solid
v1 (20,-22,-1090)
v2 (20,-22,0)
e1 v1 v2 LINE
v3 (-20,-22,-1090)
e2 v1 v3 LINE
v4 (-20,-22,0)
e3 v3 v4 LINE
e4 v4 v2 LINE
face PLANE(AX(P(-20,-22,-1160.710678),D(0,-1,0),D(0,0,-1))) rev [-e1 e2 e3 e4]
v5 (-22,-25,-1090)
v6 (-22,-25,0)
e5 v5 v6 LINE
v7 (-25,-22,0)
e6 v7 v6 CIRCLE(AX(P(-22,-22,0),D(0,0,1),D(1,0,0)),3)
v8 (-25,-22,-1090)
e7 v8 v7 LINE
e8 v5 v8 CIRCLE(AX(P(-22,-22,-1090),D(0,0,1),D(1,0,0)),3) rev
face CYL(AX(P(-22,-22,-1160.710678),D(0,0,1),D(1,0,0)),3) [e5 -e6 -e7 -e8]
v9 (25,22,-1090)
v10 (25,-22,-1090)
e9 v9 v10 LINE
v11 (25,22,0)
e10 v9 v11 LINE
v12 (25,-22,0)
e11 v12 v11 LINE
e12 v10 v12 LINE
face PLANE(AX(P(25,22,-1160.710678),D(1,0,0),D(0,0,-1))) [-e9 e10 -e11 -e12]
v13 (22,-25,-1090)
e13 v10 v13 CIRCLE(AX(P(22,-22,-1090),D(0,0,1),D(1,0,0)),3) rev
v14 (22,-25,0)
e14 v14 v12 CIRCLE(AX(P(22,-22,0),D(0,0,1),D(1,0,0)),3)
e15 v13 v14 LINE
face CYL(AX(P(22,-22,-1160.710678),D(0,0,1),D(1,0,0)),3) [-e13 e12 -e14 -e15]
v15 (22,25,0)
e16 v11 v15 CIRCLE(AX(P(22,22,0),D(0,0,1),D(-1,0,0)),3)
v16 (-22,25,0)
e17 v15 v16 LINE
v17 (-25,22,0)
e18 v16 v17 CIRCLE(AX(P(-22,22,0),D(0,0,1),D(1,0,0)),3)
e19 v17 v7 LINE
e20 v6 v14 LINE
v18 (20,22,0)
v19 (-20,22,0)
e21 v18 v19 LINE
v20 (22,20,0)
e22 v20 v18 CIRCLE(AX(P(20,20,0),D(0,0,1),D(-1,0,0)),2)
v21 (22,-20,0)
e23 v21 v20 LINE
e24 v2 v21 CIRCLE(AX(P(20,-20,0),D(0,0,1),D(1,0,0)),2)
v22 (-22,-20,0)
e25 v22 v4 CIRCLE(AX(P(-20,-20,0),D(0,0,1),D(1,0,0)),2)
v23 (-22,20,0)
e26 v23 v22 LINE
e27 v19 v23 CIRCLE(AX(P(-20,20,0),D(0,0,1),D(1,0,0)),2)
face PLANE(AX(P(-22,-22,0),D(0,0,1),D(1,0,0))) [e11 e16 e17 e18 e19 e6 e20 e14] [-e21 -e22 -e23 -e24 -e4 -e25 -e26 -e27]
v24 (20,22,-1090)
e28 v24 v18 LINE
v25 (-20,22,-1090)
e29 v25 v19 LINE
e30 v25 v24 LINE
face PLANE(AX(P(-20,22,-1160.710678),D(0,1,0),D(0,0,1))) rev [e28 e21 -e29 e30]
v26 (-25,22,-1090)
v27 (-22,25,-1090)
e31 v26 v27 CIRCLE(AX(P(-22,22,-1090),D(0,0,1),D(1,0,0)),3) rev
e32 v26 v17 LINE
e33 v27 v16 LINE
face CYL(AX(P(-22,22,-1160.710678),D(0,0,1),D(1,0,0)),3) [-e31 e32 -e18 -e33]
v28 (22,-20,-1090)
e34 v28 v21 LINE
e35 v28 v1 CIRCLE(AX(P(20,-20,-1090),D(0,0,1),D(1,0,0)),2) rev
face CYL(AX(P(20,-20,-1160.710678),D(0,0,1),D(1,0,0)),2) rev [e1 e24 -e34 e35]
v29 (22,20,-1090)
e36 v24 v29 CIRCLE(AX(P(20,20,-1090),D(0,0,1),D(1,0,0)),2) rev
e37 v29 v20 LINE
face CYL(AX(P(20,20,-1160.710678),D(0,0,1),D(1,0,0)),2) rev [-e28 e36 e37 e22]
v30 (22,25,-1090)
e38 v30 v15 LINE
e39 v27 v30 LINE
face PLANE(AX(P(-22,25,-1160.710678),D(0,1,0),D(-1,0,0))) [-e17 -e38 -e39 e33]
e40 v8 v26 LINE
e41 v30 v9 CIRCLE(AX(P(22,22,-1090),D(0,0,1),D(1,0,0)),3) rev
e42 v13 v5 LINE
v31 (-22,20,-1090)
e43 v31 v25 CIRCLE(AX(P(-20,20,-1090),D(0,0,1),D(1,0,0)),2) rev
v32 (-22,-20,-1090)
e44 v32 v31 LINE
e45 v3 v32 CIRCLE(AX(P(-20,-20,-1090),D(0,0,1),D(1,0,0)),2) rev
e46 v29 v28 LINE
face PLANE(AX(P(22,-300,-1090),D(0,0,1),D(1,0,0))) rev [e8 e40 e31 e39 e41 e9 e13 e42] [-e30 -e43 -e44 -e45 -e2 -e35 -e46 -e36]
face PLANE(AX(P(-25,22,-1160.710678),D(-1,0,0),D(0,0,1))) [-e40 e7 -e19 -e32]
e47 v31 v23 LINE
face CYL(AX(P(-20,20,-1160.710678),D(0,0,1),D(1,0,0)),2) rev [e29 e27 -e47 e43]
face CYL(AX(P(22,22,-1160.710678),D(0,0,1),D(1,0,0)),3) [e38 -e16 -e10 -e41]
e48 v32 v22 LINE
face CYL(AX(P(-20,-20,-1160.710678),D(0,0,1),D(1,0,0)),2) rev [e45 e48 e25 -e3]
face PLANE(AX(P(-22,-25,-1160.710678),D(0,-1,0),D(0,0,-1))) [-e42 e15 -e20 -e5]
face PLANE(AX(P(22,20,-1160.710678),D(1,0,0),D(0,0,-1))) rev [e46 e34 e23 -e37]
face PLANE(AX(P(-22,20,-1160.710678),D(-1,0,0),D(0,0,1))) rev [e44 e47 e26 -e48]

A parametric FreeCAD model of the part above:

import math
import FreeCAD as App
import Part
import Sketcher
from FreeCAD import Vector

doc = App.newDocument("Part")
body = doc.addObject("PartDesign::Body", "Body")

# Sketch on XY plane
sketch1 = body.newObject("Sketcher::SketchObject", "Sketch")
sketch1.AttachmentSupport = (doc.getObject("XY_Plane"), [""])
sketch1.MapMode = "FlatFace"
sketch1.addGeometry(Part.LineSegment(Vector(22, 25, 0), Vector(-22, 25, 0)), False)
sketch1.addGeometry(Part.ArcOfCircle(Part.Circle(Vector(-22, 22, 0), Vector(0, 0, 1), 3), math.radians(90), math.radians(180)), False)
sketch1.addGeometry(Part.LineSegment(Vector(-25, 22, 0), Vector(-25, -22, 0)), False)
sketch1.addGeometry(Part.ArcOfCircle(Part.Circle(Vector(-22, -22, 0), Vector(0, 0, 1), 3), math.radians(180), math.radians(270)), False)
sketch1.addGeometry(Part.LineSegment(Vector(-22, -25, 0), Vector(22, -25, 0)), False)
sketch1.addGeometry(Part.ArcOfCircle(Part.Circle(Vector(22, -22, 0), Vector(0, 0, 1), 3), math.radians(-90), math.radians(0)), False)
sketch1.addGeometry(Part.LineSegment(Vector(25, -22, 0), Vector(25, 22, 0)), False)
sketch1.addGeometry(Part.ArcOfCircle(Part.Circle(Vector(22, 22, 0), Vector(0, 0, 1), 3), math.radians(0), math.radians(90)), False)
sketch1.addGeometry(Part.LineSegment(Vector(-20, 22, 0), Vector(20, 22, 0)), False)
sketch1.addGeometry(Part.ArcOfCircle(Part.Circle(Vector(20, 20, 0), Vector(0, 0, 1), 2), math.radians(0), math.radians(90)), False)
sketch1.addGeometry(Part.LineSegment(Vector(22, 20, 0), Vector(22, -20, 0)), False)
sketch1.addGeometry(Part.ArcOfCircle(Part.Circle(Vector(20, -20, 0), Vector(0, 0, 1), 2), math.radians(-90), math.radians(0)), False)
sketch1.addGeometry(Part.LineSegment(Vector(20, -22, 0), Vector(-20, -22, 0)), False)
sketch1.addGeometry(Part.ArcOfCircle(Part.Circle(Vector(-20, -20, 0), Vector(0, 0, 1), 2), math.radians(-180), math.radians(-90)), False)
sketch1.addGeometry(Part.LineSegment(Vector(-22, -20, 0), Vector(-22, 20, 0)), False)
sketch1.addGeometry(Part.ArcOfCircle(Part.Circle(Vector(-20, 20, 0), Vector(0, 0, 1), 2), math.radians(90), math.radians(180)), False)
sketch1.addConstraint(Sketcher.Constraint("Tangent", 0, 2, 1, 1))
sketch1.addConstraint(Sketcher.Constraint("Tangent", 1, 2, 2, 1))
sketch1.addConstraint(Sketcher.Constraint("Tangent", 2, 2, 3, 1))
sketch1.addConstraint(Sketcher.Constraint("Tangent", 3, 2, 4, 1))
sketch1.addConstraint(Sketcher.Constraint("Tangent", 4, 2, 5, 1))
sketch1.addConstraint(Sketcher.Constraint("Tangent", 5, 2, 6, 1))
sketch1.addConstraint(Sketcher.Constraint("Tangent", 6, 2, 7, 1))
sketch1.addConstraint(Sketcher.Constraint("Tangent", 7, 2, 0, 1))
sketch1.addConstraint(Sketcher.Constraint("Tangent", 8, 2, 9, 2))
sketch1.addConstraint(Sketcher.Constraint("Tangent", 9, 1, 10, 1))
sketch1.addConstraint(Sketcher.Constraint("Tangent", 10, 2, 11, 2))
sketch1.addConstraint(Sketcher.Constraint("Tangent", 11, 1, 12, 1))
sketch1.addConstraint(Sketcher.Constraint("Tangent", 12, 2, 13, 2))
sketch1.addConstraint(Sketcher.Constraint("Tangent", 13, 1, 14, 1))
sketch1.addConstraint(Sketcher.Constraint("Tangent", 14, 2, 15, 2))
sketch1.addConstraint(Sketcher.Constraint("Tangent", 15, 1, 8, 1))
sketch1.addConstraint(Sketcher.Constraint("Horizontal", 0))
sketch1.addConstraint(Sketcher.Constraint("Vertical", 2))
sketch1.addConstraint(Sketcher.Constraint("Horizontal", 4))
sketch1.addConstraint(Sketcher.Constraint("Vertical", 6))
sketch1.addConstraint(Sketcher.Constraint("Horizontal", 8))
sketch1.addConstraint(Sketcher.Constraint("Vertical", 10))
sketch1.addConstraint(Sketcher.Constraint("Horizontal", 12))
sketch1.addConstraint(Sketcher.Constraint("Vertical", 14))
sketch1.addConstraint(Sketcher.Constraint("Equal", 1, 3))
sketch1.addConstraint(Sketcher.Constraint("Equal", 3, 5))
sketch1.addConstraint(Sketcher.Constraint("Equal", 5, 7))
sketch1.addConstraint(Sketcher.Constraint("Equal", 9, 11))
sketch1.addConstraint(Sketcher.Constraint("Equal", 11, 13))
sketch1.addConstraint(Sketcher.Constraint("Equal", 13, 15))
sketch1.addConstraint(Sketcher.Constraint("Symmetric", 1, 3, 5, 3, -1, 1))
sketch1.addConstraint(Sketcher.Constraint("Symmetric", 9, 3, 13, 3, -1, 1))
sketch1.addConstraint(Sketcher.Constraint("Horizontal", 6, 2, 8, 2))
sketch1.addConstraint(Sketcher.Constraint("Vertical", 7, 2, 9, 1))
sketch1.addConstraint(Sketcher.Constraint("Equal", 4, 2))
sketch1.addConstraint(Sketcher.Constraint("Radius", 1, 3.0))
sketch1.addConstraint(Sketcher.Constraint("Radius", 9, 2.0))
sketch1.addConstraint(Sketcher.Constraint("DistanceX", 0, 2, 0, 1, 44.0))
pad1 = body.newObject("PartDesign::Pad", "Pad")
pad1.Profile = sketch1
pad1.Length = 1090
pad1.Reversed = True

doc.recompute()
